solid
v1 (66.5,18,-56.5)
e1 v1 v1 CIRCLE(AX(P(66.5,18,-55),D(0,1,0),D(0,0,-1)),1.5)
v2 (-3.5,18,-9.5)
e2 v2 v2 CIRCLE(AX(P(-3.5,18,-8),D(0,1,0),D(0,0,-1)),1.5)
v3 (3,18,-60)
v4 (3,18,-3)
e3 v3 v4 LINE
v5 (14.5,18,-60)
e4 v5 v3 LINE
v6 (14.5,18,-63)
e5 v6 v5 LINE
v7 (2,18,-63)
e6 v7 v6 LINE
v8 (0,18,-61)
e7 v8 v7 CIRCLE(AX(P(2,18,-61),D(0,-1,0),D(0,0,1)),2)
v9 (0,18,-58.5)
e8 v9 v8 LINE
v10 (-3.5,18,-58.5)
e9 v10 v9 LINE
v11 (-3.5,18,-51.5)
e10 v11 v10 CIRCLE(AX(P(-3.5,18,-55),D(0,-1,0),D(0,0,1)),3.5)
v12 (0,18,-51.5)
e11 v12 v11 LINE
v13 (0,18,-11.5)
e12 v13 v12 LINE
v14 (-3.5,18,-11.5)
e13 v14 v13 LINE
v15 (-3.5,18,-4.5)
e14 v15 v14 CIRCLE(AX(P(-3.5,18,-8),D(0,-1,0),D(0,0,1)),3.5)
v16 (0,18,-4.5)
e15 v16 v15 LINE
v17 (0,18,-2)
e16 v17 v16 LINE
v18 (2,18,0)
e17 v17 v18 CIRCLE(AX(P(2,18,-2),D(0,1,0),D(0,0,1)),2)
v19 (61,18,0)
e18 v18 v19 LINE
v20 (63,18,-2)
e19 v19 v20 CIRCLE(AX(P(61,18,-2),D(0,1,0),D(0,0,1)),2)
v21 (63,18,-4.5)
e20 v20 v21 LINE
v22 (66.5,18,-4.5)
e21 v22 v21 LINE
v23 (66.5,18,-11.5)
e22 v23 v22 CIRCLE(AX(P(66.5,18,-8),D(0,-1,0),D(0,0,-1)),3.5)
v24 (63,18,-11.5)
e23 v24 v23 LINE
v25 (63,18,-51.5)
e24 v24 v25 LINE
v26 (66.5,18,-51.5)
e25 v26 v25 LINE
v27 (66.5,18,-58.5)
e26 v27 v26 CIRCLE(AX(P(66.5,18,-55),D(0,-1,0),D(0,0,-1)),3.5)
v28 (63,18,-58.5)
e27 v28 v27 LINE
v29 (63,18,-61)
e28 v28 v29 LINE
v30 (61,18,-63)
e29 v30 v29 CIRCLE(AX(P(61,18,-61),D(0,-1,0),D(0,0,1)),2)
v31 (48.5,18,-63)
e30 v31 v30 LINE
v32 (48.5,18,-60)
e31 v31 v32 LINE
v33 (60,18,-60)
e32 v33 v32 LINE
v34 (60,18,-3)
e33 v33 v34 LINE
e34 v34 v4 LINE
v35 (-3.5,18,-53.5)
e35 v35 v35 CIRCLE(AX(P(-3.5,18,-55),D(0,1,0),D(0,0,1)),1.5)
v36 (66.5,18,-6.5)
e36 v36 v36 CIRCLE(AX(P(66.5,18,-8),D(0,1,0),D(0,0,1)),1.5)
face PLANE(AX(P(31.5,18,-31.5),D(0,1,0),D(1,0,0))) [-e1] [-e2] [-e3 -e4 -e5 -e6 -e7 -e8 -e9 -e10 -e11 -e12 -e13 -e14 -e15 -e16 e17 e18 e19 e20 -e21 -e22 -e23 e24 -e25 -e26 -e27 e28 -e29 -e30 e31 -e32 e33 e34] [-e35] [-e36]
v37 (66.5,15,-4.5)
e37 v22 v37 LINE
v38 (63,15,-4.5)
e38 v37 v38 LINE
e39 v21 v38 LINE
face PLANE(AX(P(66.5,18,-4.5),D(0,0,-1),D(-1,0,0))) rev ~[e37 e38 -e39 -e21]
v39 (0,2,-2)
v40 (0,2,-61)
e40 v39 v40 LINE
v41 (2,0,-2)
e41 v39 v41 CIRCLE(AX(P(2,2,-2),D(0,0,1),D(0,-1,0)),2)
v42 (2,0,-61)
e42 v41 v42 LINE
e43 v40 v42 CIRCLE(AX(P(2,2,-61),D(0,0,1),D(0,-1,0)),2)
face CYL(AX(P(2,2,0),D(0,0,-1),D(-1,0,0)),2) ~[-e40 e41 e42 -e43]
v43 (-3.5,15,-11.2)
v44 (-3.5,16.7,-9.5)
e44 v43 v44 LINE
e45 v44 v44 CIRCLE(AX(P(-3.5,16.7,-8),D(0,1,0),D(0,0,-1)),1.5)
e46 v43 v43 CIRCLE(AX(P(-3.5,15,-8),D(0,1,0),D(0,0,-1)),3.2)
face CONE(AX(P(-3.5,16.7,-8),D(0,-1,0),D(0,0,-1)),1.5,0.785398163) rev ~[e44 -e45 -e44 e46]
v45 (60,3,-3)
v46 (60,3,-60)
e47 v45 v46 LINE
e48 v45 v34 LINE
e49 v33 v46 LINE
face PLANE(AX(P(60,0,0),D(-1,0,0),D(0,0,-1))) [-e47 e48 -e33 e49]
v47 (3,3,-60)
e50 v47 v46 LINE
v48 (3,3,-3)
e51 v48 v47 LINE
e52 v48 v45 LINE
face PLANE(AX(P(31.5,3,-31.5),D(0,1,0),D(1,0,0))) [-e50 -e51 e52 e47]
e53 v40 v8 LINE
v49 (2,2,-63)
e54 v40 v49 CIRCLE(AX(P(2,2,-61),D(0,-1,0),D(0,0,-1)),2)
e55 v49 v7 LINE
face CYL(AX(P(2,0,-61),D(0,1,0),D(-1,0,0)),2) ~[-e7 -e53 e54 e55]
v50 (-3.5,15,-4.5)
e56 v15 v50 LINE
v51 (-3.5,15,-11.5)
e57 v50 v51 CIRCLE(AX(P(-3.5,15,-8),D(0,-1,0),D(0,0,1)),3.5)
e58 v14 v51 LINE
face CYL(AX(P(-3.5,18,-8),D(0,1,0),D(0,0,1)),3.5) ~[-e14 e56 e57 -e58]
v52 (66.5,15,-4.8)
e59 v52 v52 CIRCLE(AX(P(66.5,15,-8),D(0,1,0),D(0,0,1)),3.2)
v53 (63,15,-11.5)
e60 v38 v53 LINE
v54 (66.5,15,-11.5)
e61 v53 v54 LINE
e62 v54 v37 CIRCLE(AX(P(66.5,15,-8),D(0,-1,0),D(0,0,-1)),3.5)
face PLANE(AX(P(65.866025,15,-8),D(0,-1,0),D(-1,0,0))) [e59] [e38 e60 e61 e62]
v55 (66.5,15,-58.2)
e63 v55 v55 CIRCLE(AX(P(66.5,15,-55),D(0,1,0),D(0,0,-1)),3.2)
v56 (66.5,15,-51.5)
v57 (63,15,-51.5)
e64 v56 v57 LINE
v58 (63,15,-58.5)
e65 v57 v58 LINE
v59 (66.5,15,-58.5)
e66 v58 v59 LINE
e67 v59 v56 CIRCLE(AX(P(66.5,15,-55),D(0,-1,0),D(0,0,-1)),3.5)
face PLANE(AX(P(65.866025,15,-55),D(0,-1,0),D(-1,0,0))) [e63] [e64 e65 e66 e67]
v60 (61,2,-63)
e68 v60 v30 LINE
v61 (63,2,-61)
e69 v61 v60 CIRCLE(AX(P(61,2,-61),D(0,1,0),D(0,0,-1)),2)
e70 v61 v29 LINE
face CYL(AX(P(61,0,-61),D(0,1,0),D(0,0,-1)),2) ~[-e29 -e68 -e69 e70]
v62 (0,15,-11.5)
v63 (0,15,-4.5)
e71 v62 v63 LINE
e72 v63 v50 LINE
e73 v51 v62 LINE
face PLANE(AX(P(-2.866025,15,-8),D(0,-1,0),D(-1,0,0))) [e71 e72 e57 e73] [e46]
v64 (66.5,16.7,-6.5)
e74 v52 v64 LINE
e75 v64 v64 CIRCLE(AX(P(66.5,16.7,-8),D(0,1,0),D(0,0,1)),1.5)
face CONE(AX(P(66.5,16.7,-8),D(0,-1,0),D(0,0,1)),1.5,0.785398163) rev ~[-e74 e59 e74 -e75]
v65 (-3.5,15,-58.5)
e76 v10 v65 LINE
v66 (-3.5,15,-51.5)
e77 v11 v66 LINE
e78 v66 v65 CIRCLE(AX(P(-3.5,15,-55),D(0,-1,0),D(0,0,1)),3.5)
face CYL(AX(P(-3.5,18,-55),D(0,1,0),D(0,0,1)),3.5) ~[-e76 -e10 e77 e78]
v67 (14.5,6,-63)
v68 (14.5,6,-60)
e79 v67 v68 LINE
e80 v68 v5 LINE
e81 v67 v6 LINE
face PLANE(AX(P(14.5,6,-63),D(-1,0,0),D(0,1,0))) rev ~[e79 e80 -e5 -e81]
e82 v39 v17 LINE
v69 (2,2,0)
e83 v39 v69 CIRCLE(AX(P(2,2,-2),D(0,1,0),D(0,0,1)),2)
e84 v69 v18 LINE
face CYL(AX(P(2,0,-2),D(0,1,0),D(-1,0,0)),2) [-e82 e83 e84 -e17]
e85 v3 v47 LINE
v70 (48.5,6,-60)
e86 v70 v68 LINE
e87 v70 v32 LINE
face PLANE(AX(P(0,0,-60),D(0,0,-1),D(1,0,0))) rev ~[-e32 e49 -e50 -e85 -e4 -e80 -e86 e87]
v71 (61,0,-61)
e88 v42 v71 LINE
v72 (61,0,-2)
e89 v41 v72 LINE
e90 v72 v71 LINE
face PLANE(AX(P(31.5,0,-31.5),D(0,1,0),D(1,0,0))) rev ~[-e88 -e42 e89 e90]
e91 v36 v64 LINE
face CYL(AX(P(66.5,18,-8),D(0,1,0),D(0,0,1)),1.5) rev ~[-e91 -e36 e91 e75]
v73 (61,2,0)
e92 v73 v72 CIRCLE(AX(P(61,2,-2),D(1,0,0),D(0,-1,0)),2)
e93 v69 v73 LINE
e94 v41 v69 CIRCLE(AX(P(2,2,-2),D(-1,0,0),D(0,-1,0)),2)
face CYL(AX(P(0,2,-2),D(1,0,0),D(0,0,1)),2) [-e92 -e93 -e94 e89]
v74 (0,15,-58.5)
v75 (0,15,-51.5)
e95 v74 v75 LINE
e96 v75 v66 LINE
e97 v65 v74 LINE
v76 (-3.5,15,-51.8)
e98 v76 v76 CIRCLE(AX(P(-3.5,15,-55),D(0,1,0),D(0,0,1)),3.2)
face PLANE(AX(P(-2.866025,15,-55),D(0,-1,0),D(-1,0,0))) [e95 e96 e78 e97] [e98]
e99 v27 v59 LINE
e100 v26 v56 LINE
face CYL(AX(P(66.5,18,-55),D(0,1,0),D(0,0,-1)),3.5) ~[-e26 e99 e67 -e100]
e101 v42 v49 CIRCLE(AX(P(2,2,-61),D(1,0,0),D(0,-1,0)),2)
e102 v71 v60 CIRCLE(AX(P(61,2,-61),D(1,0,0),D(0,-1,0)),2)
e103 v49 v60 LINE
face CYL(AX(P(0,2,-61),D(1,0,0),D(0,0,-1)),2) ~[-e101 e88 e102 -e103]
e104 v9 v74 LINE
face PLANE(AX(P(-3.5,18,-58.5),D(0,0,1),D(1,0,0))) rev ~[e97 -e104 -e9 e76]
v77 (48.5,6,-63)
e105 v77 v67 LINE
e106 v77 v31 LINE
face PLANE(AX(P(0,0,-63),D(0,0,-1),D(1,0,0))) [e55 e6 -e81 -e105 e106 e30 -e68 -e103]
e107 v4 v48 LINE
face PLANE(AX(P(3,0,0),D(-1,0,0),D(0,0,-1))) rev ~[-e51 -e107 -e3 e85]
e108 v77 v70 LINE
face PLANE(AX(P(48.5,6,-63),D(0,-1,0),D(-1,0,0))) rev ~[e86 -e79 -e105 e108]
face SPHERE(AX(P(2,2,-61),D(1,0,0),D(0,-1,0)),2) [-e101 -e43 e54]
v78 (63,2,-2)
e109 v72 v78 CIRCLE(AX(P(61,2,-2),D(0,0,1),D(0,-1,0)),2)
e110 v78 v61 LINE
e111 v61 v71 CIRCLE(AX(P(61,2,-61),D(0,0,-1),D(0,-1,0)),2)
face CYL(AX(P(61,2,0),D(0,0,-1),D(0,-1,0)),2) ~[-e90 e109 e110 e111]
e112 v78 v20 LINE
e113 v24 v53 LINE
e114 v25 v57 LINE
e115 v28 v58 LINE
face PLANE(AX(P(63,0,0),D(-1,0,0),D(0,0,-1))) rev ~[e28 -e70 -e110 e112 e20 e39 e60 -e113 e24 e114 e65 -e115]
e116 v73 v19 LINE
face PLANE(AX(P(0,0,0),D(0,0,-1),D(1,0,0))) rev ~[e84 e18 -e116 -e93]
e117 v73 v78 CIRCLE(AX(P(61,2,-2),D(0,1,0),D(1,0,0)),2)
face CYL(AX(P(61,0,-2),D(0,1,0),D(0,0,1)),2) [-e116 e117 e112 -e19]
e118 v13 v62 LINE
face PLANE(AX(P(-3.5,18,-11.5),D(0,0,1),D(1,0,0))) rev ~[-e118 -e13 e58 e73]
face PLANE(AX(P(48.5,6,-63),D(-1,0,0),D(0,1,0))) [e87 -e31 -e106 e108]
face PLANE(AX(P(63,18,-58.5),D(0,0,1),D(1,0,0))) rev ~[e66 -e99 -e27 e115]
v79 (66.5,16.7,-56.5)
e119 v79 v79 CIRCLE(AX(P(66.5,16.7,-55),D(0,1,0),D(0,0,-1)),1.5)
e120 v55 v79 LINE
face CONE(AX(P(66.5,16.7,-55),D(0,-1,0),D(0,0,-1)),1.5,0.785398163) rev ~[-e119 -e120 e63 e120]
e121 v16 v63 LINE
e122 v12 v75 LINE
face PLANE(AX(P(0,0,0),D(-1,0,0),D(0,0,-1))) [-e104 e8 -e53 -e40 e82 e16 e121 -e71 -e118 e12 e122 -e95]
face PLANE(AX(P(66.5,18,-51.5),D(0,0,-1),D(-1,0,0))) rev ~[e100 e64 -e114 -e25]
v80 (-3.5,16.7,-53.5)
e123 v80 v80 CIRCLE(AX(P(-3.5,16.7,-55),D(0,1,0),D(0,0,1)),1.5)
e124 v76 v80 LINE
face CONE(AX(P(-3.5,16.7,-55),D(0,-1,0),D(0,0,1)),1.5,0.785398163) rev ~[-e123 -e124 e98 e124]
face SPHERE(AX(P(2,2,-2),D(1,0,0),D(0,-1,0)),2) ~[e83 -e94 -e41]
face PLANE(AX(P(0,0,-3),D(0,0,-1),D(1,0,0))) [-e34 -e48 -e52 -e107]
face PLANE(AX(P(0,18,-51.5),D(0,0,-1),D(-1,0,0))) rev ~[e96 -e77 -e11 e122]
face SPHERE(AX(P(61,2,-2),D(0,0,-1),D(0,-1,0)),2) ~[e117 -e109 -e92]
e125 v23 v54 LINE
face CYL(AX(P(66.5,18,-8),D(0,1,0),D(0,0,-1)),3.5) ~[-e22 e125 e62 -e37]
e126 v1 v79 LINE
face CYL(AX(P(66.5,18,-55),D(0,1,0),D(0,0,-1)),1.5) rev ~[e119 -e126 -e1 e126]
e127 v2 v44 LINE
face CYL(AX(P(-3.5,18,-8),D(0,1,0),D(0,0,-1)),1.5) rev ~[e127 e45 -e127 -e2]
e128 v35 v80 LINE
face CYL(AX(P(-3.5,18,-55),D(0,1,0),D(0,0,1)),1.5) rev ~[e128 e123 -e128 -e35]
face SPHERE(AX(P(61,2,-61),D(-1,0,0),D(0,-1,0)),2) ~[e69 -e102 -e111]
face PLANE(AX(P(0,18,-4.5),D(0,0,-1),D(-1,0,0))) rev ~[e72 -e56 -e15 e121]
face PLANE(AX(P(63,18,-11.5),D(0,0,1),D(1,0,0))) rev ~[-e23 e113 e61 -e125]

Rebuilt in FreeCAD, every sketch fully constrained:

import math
import FreeCAD as App
import Part
import Sketcher


def edges_at(feature, points):
    """Names of the edges that pass closest to the given points."""
    edges = feature.Shape.Edges
    near = lambda p: min(range(len(edges)), key=lambda i: edges[i].distToShape(Part.Vertex(*p))[0])
    return sorted({f"Edge{near(p) + 1}" for p in points})


def faces_at(feature, points):
    """Names of the faces that lie closest to the given points."""
    faces = feature.Shape.Faces
    near = lambda p: min(range(len(faces)), key=lambda i: faces[i].distToShape(Part.Vertex(*p))[0])
    return sorted({f"Face{near(p) + 1}" for p in points})

doc = App.newDocument("Part")
body = doc.addObject("PartDesign::Body", "Body")

sketch1 = doc.addObject("Sketcher::SketchObject", "Sketch")
body.addObject(sketch1)
sketch1.AttachmentSupport = (doc.XZ_Plane, [""])
sketch1.MapMode = "FlatFace"
sketch1.addGeometry(Part.LineSegment(App.Vector(0, -63, 0), App.Vector(0, 0, 0)), False)
sketch1.addGeometry(Part.LineSegment(App.Vector(0, 0, 0), App.Vector(63, 0, 0)), False)
sketch1.addGeometry(Part.LineSegment(App.Vector(63, 0, 0), App.Vector(63, -63, 0)), False)
sketch1.addGeometry(Part.LineSegment(App.Vector(63, -63, 0), App.Vector(0, -63, 0)), False)
sketch1.addConstraint(Sketcher.Constraint("Coincident", 0, 2, 1, 1))
sketch1.addConstraint(Sketcher.Constraint("Coincident", 1, 2, 2, 1))
sketch1.addConstraint(Sketcher.Constraint("Coincident", 2, 2, 3, 1))
sketch1.addConstraint(Sketcher.Constraint("Coincident", 3, 2, 0, 1))
sketch1.addConstraint(Sketcher.Constraint("Vertical", 0))
sketch1.addConstraint(Sketcher.Constraint("Horizontal", 1))
sketch1.addConstraint(Sketcher.Constraint("Vertical", 2))
sketch1.addConstraint(Sketcher.Constraint("Horizontal", 3))
sketch1.addConstraint(Sketcher.Constraint("Coincident", 0, 2, -1, 1))
sketch1.addConstraint(Sketcher.Constraint("Equal", 3, 0))
sketch1.addConstraint(Sketcher.Constraint("DistanceX", 1, 1, 1, 2, 63.0))
pad1 = doc.addObject("PartDesign::Pad", "Pad")
body.addObject(pad1)
pad1.Profile = sketch1
pad1.Length = 18
pad1.Reversed = True
doc.recompute()

thickness = doc.addObject("PartDesign::Thickness", "Thickness")
body.addObject(thickness)
thickness.Base = (pad1, faces_at(pad1, [(31.5, 18, -31.5)]))
thickness.Value = 3
thickness.Reversed = True
thickness.Join = "Intersection"

sketch2 = doc.addObject("Sketcher::SketchObject", "Sketch001")
body.addObject(sketch2)
sketch2.AttachmentSupport = (doc.XY_Plane, [""])
sketch2.MapMode = "FlatFace"
sketch2.AttachmentOffset = App.Placement(App.Vector(0, 0, -63), App.Rotation())
sketch2.addGeometry(Part.LineSegment(App.Vector(48.5, 18, 0), App.Vector(48.5, 6, 0)), False)
sketch2.addGeometry(Part.LineSegment(App.Vector(48.5, 6, 0), App.Vector(14.5, 6, 0)), False)
sketch2.addGeometry(Part.LineSegment(App.Vector(14.5, 6, 0), App.Vector(14.5, 18, 0)), False)
sketch2.addGeometry(Part.LineSegment(App.Vector(14.5, 18, 0), App.Vector(48.5, 18, 0)), False)
sketch2.addConstraint(Sketcher.Constraint("Coincident", 0, 2, 1, 1))
sketch2.addConstraint(Sketcher.Constraint("Coincident", 1, 2, 2, 1))
sketch2.addConstraint(Sketcher.Constraint("Coincident", 2, 2, 3, 1))
sketch2.addConstraint(Sketcher.Constraint("Coincident", 3, 2, 0, 1))
sketch2.addConstraint(Sketcher.Constraint("Vertical", 0))
sketch2.addConstraint(Sketcher.Constraint("Horizontal", 1))
sketch2.addConstraint(Sketcher.Constraint("Vertical", 2))
sketch2.addConstraint(Sketcher.Constraint("Horizontal", 3))
sketch2.addConstraint(Sketcher.Constraint("DistanceX", 1, 2, 1, 1, 34.0))
sketch2.addConstraint(Sketcher.Constraint("DistanceY", 0, 2, 0, 1, 12.0))
sketch2.addConstraint(Sketcher.Constraint("DistanceY", -1, 1, 0, 2, 6.0))
sketch2.addConstraint(Sketcher.Constraint("DistanceX", -1, 1, 0, 2, 48.5))
pocket1 = doc.addObject("PartDesign::Pocket", "Pocket")
body.addObject(pocket1)
pocket1.Profile = sketch2
pocket1.Length = 3
pocket1.Reversed = True
doc.recompute()

fillet = doc.addObject("PartDesign::Fillet", "Fillet")
body.addObject(fillet)
fillet.Base = (pocket1, edges_at(pocket1, [
    (31.5, 0, -63),
    (63, 0, -31.5),
    (31.5, 0, 0),
    (0, 0, -31.5),
    (0, 9, -63),
    (63, 9, -63),
    (63, 9, 0),
    (0, 9, 0),
]))
fillet.Radius = 2

sketch3 = doc.addObject("Sketcher::SketchObject", "Sketch002")
body.addObject(sketch3)
sketch3.AttachmentSupport = (doc.XZ_Plane, [""])
sketch3.MapMode = "FlatFace"
sketch3.AttachmentOffset = App.Placement(App.Vector(0, 0, -18), App.Rotation())
sketch3.addGeometry(Part.LineSegment(App.Vector(0, -51.5, 0), App.Vector(0, -58.5, 0)), False)
sketch3.addGeometry(Part.LineSegment(App.Vector(0, -58.5, 0), App.Vector(-3.5, -58.5, 0)), False)
sketch3.addGeometry(Part.ArcOfCircle(Part.Circle(App.Vector(-3.5, -55, 0), App.Vector(0, 0, 1), 3.5), math.radians(90), math.radians(270)), False)
sketch3.addGeometry(Part.LineSegment(App.Vector(-3.5, -51.5, 0), App.Vector(0, -51.5, 0)), False)
sketch3.addGeometry(Part.Circle(App.Vector(-3.5, -55, 0), App.Vector(0, 0, 1), 1.5), False)
sketch3.addGeometry(Part.LineSegment(App.Vector(63, -51.5, 0), App.Vector(66.5, -51.5, 0)), False)
sketch3.addGeometry(Part.ArcOfCircle(Part.Circle(App.Vector(66.5, -55, 0), App.Vector(0, 0, 1), 3.5), math.radians(-90), math.radians(90)), False)
sketch3.addGeometry(Part.LineSegment(App.Vector(66.5, -58.5, 0), App.Vector(63, -58.5, 0)), False)
sketch3.addGeometry(Part.LineSegment(App.Vector(63, -58.5, 0), App.Vector(63, -51.5, 0)), False)
sketch3.addGeometry(Part.Circle(App.Vector(66.5, -55, 0), App.Vector(0, 0, 1), 1.5), False)
sketch3.addGeometry(Part.LineSegment(App.Vector(63, -11.5, 0), App.Vector(63, -4.5, 0)), False)
sketch3.addGeometry(Part.LineSegment(App.Vector(63, -4.5, 0), App.Vector(66.5, -4.5, 0)), False)
sketch3.addGeometry(Part.ArcOfCircle(Part.Circle(App.Vector(66.5, -8, 0), App.Vector(0, 0, 1), 3.5), math.radians(-90), math.radians(90)), False)
sketch3.addGeometry(Part.LineSegment(App.Vector(66.5, -11.5, 0), App.Vector(63, -11.5, 0)), False)
sketch3.addGeometry(Part.Circle(App.Vector(66.5, -8, 0), App.Vector(0, 0, 1), 1.5), False)
sketch3.addGeometry(Part.LineSegment(App.Vector(0, -11.5, 0), App.Vector(-3.5, -11.5, 0)), False)
sketch3.addGeometry(Part.ArcOfCircle(Part.Circle(App.Vector(-3.5, -8, 0), App.Vector(0, 0, 1), 3.5), math.radians(90), math.radians(270)), False)
sketch3.addGeometry(Part.LineSegment(App.Vector(-3.5, -4.5, 0), App.Vector(0, -4.5, 0)), False)
sketch3.addGeometry(Part.LineSegment(App.Vector(0, -4.5, 0), App.Vector(0, -11.5, 0)), False)
sketch3.addGeometry(Part.Circle(App.Vector(-3.5, -8, 0), App.Vector(0, 0, 1), 1.5), False)
sketch3.addConstraint(Sketcher.Constraint("Coincident", 0, 2, 1, 1))
sketch3.addConstraint(Sketcher.Constraint("Tangent", 1, 2, 2, 2))
sketch3.addConstraint(Sketcher.Constraint("Tangent", 2, 1, 3, 1))
sketch3.addConstraint(Sketcher.Constraint("Coincident", 3, 2, 0, 1))
sketch3.addConstraint(Sketcher.Constraint("Tangent", 5, 2, 6, 2))
sketch3.addConstraint(Sketcher.Constraint("Tangent", 6, 1, 7, 1))
sketch3.addConstraint(Sketcher.Constraint("Coincident", 7, 2, 8, 1))
sketch3.addConstraint(Sketcher.Constraint("Coincident", 8, 2, 5, 1))
sketch3.addConstraint(Sketcher.Constraint("Coincident", 10, 2, 11, 1))
sketch3.addConstraint(Sketcher.Constraint("Tangent", 11, 2, 12, 2))
sketch3.addConstraint(Sketcher.Constraint("Tangent", 12, 1, 13, 1))
sketch3.addConstraint(Sketcher.Constraint("Coincident", 13, 2, 10, 1))
sketch3.addConstraint(Sketcher.Constraint("Tangent", 15, 2, 16, 2))
sketch3.addConstraint(Sketcher.Constraint("Tangent", 16, 1, 17, 1))
sketch3.addConstraint(Sketcher.Constraint("Coincident", 17, 2, 18, 1))
sketch3.addConstraint(Sketcher.Constraint("Coincident", 18, 2, 15, 1))
sketch3.addConstraint(Sketcher.Constraint("Vertical", 0))
sketch3.addConstraint(Sketcher.Constraint("Horizontal", 1))
sketch3.addConstraint(Sketcher.Constraint("Horizontal", 3))
sketch3.addConstraint(Sketcher.Constraint("Horizontal", 5))
sketch3.addConstraint(Sketcher.Constraint("Horizontal", 7))
sketch3.addConstraint(Sketcher.Constraint("Vertical", 8))
sketch3.addConstraint(Sketcher.Constraint("Vertical", 10))
sketch3.addConstraint(Sketcher.Constraint("Horizontal", 11))
sketch3.addConstraint(Sketcher.Constraint("Horizontal", 13))
sketch3.addConstraint(Sketcher.Constraint("Horizontal", 15))
sketch3.addConstraint(Sketcher.Constraint("Horizontal", 17))
sketch3.addConstraint(Sketcher.Constraint("Vertical", 18))
sketch3.addConstraint(Sketcher.Constraint("Coincident", 4, 3, 2, 3))
sketch3.addConstraint(Sketcher.Constraint("Coincident", 9, 3, 6, 3))
sketch3.addConstraint(Sketcher.Constraint("Coincident", 14, 3, 12, 3))
sketch3.addConstraint(Sketcher.Constraint("Coincident", 19, 3, 16, 3))
sketch3.addConstraint(Sketcher.Constraint("Equal", 2, 6))
sketch3.addConstraint(Sketcher.Constraint("Equal", 4, 9))
sketch3.addConstraint(Sketcher.Constraint("Equal", 6, 12))
sketch3.addConstraint(Sketcher.Constraint("Equal", 9, 14))
sketch3.addConstraint(Sketcher.Constraint("Equal", 12, 16))
sketch3.addConstraint(Sketcher.Constraint("Equal", 14, 19))
sketch3.addConstraint(Sketcher.Constraint("PointOnObject", 0, 2, -2))
sketch3.addConstraint(Sketcher.Constraint("PointOnObject", 17, 2, -2))
sketch3.addConstraint(Sketcher.Constraint("Horizontal", 4, 3, 6, 3))
sketch3.addConstraint(Sketcher.Constraint("Horizontal", 14, 3, 16, 3))
sketch3.addConstraint(Sketcher.Constraint("Vertical", 9, 3, 12, 3))
sketch3.addConstraint(Sketcher.Constraint("Vertical", 4, 3, 16, 3))
sketch3.addConstraint(Sketcher.Constraint("Vertical", 8, 2, 10, 2))
sketch3.addConstraint(Sketcher.Constraint("Equal", 3, 5))
sketch3.addConstraint(Sketcher.Constraint("Diameter", 4, 3.0))
sketch3.addConstraint(Sketcher.Constraint("Radius", 2, 3.5))
sketch3.addConstraint(Sketcher.Constraint("DistanceX", 1, 2, 1, 1, 3.5))
sketch3.addConstraint(Sketcher.Constraint("DistanceY", 2, 3, -1, 1, 55.0))
sketch3.addConstraint(Sketcher.Constraint("DistanceY", 12, 3, -1, 1, 8.0))
sketch3.addConstraint(Sketcher.Constraint("DistanceX", -1, 1, 7, 2, 63.0))
pad2 = doc.addObject("PartDesign::Pad", "Pad001")
body.addObject(pad2)
pad2.Profile = sketch3
pad2.Length = 3
doc.recompute()

chamfer = doc.addObject("PartDesign::Chamfer", "Chamfer")
body.addObject(chamfer)
chamfer.Base = (pad2, edges_at(pad2, [
    (66.5, 15, -9.5),
    (-3.5, 15, -6.5),
    (-3.5, 15, -56.5),
    (66.5, 15, -53.5),
]))
chamfer.Size = 1.7

doc.recompute()
